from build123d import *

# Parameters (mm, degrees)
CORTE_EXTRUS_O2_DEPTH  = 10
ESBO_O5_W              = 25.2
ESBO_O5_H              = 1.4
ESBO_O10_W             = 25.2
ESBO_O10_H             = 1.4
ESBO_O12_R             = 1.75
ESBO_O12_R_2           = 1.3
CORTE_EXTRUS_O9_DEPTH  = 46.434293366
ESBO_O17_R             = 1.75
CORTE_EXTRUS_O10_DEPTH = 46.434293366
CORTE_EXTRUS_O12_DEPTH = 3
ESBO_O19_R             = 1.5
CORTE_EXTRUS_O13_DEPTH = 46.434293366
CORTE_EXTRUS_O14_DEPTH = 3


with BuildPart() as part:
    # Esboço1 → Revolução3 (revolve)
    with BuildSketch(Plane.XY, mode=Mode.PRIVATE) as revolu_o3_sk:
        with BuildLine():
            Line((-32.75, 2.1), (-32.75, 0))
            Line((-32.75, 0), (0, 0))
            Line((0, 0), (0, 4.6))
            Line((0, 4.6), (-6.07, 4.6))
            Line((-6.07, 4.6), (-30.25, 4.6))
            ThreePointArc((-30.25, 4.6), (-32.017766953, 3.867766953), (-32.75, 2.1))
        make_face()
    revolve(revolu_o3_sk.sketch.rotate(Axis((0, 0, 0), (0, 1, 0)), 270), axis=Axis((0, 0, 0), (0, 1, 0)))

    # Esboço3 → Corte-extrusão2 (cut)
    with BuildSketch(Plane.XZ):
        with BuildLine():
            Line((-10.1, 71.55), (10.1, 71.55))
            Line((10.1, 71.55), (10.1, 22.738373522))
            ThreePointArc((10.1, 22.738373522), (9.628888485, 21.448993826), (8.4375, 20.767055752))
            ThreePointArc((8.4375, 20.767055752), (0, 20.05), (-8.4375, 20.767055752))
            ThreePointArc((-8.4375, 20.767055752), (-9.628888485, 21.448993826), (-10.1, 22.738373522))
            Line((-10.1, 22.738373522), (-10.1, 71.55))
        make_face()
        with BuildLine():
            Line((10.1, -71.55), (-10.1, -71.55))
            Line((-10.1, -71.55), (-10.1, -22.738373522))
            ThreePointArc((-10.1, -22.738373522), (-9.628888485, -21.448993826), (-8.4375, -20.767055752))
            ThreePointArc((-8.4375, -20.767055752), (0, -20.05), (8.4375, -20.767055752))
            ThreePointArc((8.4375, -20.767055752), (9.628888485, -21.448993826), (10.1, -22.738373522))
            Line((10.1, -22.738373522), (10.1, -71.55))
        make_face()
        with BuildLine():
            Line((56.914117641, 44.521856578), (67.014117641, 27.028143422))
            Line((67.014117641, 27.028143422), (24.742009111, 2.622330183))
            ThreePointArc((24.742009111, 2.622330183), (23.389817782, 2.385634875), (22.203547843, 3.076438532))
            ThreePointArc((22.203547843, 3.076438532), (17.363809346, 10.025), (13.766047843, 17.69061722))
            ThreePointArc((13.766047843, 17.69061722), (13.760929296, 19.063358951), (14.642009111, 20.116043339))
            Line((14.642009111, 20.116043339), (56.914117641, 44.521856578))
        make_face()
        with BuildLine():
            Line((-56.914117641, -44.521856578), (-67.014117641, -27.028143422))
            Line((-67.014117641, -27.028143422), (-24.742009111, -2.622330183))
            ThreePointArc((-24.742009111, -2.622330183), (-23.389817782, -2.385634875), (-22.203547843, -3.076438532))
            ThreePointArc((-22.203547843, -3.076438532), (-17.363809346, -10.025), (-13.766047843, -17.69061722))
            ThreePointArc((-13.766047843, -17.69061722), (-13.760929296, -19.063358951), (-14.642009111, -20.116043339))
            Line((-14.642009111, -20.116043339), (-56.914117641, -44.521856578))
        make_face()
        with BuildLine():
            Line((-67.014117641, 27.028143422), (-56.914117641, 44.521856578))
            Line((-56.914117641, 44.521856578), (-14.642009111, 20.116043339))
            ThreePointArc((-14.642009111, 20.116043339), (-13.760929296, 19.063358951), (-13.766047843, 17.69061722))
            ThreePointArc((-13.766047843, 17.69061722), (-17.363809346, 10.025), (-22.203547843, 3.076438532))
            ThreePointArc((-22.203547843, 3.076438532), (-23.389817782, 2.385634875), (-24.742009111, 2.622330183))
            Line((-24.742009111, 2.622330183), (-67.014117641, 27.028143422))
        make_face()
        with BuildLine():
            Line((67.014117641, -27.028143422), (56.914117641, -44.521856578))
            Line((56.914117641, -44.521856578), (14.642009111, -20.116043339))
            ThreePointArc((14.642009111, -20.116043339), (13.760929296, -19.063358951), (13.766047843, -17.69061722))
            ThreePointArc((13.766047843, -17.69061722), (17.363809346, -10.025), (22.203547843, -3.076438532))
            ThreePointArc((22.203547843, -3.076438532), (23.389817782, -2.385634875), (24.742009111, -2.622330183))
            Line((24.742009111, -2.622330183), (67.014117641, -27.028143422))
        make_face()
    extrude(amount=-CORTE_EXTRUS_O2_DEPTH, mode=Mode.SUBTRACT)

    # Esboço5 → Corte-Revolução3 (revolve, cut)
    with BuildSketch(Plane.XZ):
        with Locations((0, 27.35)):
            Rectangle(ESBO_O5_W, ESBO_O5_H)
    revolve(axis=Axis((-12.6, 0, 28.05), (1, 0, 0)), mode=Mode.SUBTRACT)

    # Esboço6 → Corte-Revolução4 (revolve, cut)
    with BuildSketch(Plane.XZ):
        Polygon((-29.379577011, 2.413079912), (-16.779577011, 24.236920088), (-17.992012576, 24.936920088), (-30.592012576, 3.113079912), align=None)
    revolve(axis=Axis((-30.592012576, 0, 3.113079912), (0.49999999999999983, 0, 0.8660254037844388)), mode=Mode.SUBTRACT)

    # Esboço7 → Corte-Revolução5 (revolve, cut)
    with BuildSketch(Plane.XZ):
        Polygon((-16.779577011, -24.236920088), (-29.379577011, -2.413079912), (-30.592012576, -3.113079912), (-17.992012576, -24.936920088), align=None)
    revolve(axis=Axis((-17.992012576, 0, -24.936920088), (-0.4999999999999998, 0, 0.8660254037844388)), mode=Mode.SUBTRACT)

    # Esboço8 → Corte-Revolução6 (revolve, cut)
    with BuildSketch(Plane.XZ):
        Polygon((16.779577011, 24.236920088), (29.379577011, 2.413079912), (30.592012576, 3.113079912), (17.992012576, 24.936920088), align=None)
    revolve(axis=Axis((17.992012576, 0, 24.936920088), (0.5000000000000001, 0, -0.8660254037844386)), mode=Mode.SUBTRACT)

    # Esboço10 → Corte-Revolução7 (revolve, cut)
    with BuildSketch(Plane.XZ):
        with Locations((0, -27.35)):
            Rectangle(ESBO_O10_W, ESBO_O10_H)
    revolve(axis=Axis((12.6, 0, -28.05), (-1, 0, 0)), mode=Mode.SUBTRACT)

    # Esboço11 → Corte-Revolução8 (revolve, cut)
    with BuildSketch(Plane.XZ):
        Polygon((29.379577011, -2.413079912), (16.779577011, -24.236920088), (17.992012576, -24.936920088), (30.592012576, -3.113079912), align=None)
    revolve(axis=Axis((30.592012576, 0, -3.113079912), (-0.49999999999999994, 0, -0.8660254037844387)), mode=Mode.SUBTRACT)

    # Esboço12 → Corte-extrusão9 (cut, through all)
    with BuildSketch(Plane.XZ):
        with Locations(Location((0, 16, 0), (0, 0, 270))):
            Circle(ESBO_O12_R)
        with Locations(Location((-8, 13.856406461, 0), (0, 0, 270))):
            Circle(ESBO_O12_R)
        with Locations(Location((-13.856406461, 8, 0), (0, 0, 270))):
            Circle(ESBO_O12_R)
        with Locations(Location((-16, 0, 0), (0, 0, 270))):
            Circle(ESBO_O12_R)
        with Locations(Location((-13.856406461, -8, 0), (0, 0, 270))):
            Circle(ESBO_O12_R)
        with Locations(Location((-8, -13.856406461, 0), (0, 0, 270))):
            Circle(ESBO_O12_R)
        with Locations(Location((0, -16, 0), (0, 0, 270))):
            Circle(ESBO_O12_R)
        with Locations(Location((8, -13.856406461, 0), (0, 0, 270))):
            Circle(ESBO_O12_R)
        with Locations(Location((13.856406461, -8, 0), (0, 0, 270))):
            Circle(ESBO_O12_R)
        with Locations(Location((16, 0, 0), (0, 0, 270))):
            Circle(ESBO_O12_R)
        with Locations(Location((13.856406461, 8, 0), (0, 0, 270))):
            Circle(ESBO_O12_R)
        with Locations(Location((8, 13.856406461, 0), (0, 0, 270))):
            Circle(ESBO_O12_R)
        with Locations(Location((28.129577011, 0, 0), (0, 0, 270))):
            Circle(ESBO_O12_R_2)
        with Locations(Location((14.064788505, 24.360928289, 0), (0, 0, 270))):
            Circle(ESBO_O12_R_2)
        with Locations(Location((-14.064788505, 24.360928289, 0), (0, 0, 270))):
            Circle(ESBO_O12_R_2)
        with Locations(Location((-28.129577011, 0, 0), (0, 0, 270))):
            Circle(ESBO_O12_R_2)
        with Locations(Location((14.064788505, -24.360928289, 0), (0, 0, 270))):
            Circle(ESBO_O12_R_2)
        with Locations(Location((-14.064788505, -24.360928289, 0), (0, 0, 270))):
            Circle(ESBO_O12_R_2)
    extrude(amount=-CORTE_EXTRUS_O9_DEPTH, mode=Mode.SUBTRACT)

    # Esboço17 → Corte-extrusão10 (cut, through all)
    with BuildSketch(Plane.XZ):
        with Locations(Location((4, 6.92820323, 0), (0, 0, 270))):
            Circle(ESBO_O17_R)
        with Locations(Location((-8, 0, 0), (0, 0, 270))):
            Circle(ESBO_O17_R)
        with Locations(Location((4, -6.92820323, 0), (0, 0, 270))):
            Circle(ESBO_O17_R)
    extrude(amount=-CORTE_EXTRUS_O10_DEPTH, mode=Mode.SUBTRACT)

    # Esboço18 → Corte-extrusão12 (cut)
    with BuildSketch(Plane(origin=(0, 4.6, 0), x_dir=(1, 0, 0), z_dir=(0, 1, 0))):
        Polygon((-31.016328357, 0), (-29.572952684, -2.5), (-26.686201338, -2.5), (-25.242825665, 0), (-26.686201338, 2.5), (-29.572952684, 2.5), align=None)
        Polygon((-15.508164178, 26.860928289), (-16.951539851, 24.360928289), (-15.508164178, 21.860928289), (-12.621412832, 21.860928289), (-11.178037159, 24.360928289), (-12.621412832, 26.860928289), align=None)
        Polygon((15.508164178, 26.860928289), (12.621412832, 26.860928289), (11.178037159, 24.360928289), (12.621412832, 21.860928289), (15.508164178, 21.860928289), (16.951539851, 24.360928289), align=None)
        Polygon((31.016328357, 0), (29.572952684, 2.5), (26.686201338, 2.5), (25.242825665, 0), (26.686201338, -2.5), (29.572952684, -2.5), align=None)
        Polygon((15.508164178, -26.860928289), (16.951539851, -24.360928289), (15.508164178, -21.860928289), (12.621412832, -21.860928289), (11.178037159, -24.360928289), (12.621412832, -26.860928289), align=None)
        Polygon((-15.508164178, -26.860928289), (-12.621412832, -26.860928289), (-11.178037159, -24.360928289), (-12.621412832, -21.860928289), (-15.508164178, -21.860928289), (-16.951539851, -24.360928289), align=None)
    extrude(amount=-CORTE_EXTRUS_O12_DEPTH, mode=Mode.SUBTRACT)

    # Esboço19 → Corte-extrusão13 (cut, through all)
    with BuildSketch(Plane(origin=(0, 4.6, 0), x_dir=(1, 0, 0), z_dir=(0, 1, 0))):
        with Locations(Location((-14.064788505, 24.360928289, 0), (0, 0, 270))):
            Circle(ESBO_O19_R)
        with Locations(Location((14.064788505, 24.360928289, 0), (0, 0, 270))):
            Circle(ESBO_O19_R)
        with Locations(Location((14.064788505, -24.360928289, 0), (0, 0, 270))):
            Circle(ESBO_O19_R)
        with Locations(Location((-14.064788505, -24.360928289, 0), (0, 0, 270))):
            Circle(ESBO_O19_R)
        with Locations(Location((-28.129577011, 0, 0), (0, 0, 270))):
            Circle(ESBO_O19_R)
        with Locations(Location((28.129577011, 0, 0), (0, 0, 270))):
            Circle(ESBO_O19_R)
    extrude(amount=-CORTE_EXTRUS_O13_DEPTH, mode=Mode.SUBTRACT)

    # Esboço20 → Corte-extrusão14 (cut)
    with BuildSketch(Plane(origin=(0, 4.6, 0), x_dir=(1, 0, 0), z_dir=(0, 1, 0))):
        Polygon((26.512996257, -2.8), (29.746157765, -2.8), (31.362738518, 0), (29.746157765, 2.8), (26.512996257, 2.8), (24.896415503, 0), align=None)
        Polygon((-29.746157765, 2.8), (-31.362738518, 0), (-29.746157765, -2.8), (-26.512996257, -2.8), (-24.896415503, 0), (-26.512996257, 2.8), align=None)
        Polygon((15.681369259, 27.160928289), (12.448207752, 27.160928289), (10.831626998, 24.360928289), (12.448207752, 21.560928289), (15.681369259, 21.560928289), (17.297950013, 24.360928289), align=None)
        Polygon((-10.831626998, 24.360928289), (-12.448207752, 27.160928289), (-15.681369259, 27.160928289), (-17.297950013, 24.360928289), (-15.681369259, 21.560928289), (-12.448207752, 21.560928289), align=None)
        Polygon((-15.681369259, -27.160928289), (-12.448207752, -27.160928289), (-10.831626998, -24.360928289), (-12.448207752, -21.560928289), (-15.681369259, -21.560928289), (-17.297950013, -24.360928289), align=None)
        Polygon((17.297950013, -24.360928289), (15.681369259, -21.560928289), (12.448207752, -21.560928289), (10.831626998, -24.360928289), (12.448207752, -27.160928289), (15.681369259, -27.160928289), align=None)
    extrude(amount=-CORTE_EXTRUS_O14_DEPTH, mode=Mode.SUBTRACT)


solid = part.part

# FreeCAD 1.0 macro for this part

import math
import FreeCAD as App
import Part
import Sketcher
Q = App.Units.Quantity


def add_polygon(sketch, points):
    """Adds a closed chain of lines whose ends are joined by coincident constraints."""
    first, n = sketch.GeometryCount, len(points)
    for a, b in zip(points, points[1:] + points[:1]):
        sketch.addGeometry(Part.LineSegment(App.Vector(*a, 0), App.Vector(*b, 0)), False)
    for i in range(n):
        sketch.addConstraint(Sketcher.Constraint("Coincident", first + i, 2, first + (i + 1) % n, 1))

doc = App.newDocument("Part")
params = doc.addObject("Spreadsheet::Sheet", "Params")
for row, (alias, value) in enumerate([
    ("sketch1_radius", "2.5 mm"),
    ("sketch1_height", "2.1 mm"),
    ("sketch1_width", "32.75 mm"),
    ("revolution_angle", "360 deg"),
    ("sketch2_radius", "2 mm"),
    ("sketch2_radius2", "50 mm"),
    ("sketch2_width", "20.2 mm"),
    ("sketch2_length", "20.2 mm"),
    ("pocket1_length", "10 mm"),
    ("sketch3_width", "25.2 mm"),
    ("sketch3_height", "1.4 mm"),
    ("groove_angle", "360 deg"),
    ("sketch4_length", "25.2 mm"),
    ("sketch4_length2", "1.4 mm"),
    ("groove2_angle", "360 deg"),
    ("sketch5_length", "25.2 mm"),
    ("sketch5_length2", "1.4 mm"),
    ("groove3_angle", "360 deg"),
    ("sketch6_length", "25.2 mm"),
    ("sketch6_length2", "1.4 mm"),
    ("groove4_angle", "360 deg"),
    ("sketch7_width", "25.2 mm"),
    ("sketch7_height", "1.4 mm"),
    ("groove5_angle", "360 deg"),
    ("sketch8_length", "25.2 mm"),
    ("sketch8_length2", "1.4 mm"),
    ("groove6_angle", "360 deg"),
    ("sketch9_diameter", "3.5 mm"),
    ("sketch9_diameter2", "2.6 mm"),
    ("sketch10_diameter", "3.5 mm"),
    ("pocket4_length", "3 mm"),
    ("sketch12_diameter", "3 mm"),
    ("pocket6_length", "3 mm"),
], start=1):
    params.set(f"A{row}", alias)
    params.set(f"B{row}", "=" + value)
    params.setAlias(f"B{row}", alias)

body = doc.addObject("PartDesign::Body", "Body")

# Sketch on XY plane
sketch1 = body.newObject("Sketcher::SketchObject", "Sketch")
sketch1.AttachmentSupport = (doc.getObject("XY_Plane"), [""])
sketch1.MapMode = "FlatFace"
sketch1.addGeometry(Part.LineSegment(App.Vector(-32.8, 2.1, 0), App.Vector(-32.8, 0, 0)), False)
sketch1.addGeometry(Part.LineSegment(App.Vector(-32.8, 0, 0), App.Vector(0, 0, 0)), False)
sketch1.addGeometry(Part.LineSegment(App.Vector(0, 0, 0), App.Vector(0, 4.6, 0)), False)
sketch1.addGeometry(Part.LineSegment(App.Vector(0, 4.6, 0), App.Vector(-30.2, 4.6, 0)), False)
sketch1.addGeometry(Part.ArcOfCircle(Part.Circle(App.Vector(-30.2, 2.1, 0), App.Vector(0, 0, 1), 2.5), math.radians(90), math.radians(180)), False)
sketch1.addConstraint(Sketcher.Constraint("Coincident", 0, 2, 1, 1))
sketch1.addConstraint(Sketcher.Constraint("Coincident", 1, 2, 2, 1))
sketch1.addConstraint(Sketcher.Constraint("Coincident", 2, 2, 3, 1))
sketch1.addConstraint(Sketcher.Constraint("Tangent", 3, 2, 4, 1))
sketch1.addConstraint(Sketcher.Constraint("Tangent", 4, 2, 0, 1))
sketch1.addConstraint(Sketcher.Constraint("Vertical", 0))
sketch1.addConstraint(Sketcher.Constraint("Horizontal", 1))
sketch1.addConstraint(Sketcher.Constraint("Vertical", 2))
sketch1.addConstraint(Sketcher.Constraint("Horizontal", 3))
sketch1.addConstraint(Sketcher.Constraint("Coincident", 1, 2, -1, 1))
sketch1.addConstraint(Sketcher.Constraint("Radius", 4, 2.5))
sketch1.addConstraint(Sketcher.Constraint("DistanceY", 0, 2, 0, 1, 2.1))
sketch1.addConstraint(Sketcher.Constraint("DistanceX", 1, 1, 1, 2, 32.75))
sketch1.setExpression("Constraints[10]", "Params.sketch1_radius")
sketch1.setExpression("Constraints[11]", "Params.sketch1_height")
sketch1.setExpression("Constraints[12]", "Params.sketch1_width")
revolution = body.newObject("PartDesign::Revolution", "Revolution")
revolution.Profile = sketch1
revolution.ReferenceAxis = (sketch1, ["V_Axis"])
revolution.setExpression("Angle", "Params.revolution_angle")

# Sketch on XZ plane
sketch2 = body.newObject("Sketcher::SketchObject", "Sketch001")
sketch2.AttachmentSupport = (doc.getObject("XZ_Plane"), [""])
sketch2.MapMode = "FlatFace"
sketch2.addGeometry(Part.LineSegment(App.Vector(10.1, 71.5, 0), App.Vector(-10.1, 71.5, 0)), False)
sketch2.addGeometry(Part.LineSegment(App.Vector(-10.1, 71.5, 0), App.Vector(-10.1, 22.7, 0)), False)
sketch2.addGeometry(Part.ArcOfCircle(Part.Circle(App.Vector(-8.1, 22.7, 0), App.Vector(0, 0, 1), 2), math.radians(180), math.radians(260)), False)
sketch2.addGeometry(Part.ArcOfCircle(Part.Circle(App.Vector(0, 70.1, 0), App.Vector(0, 0, 1), 50), math.radians(-99.72), math.radians(-80.28)), False)
sketch2.addGeometry(Part.ArcOfCircle(Part.Circle(App.Vector(8.1, 22.7, 0), App.Vector(0, 0, 1), 2), math.radians(-80), math.radians(0)), False)
sketch2.addGeometry(Part.LineSegment(App.Vector(10.1, 22.7, 0), App.Vector(10.1, 71.5, 0)), False)
sketch2.addGeometry(Part.LineSegment(App.Vector(-10.1, -71.5, 0), App.Vector(10.1, -71.5, 0)), False)
sketch2.addGeometry(Part.LineSegment(App.Vector(10.1, -71.5, 0), App.Vector(10.1, -22.7, 0)), False)
sketch2.addGeometry(Part.ArcOfCircle(Part.Circle(App.Vector(8.1, -22.7, 0), App.Vector(0, 0, 1), 2), math.radians(0), math.radians(80)), False)
sketch2.addGeometry(Part.ArcOfCircle(Part.Circle(App.Vector(0, -70.1, 0), App.Vector(0, 0, 1), 50), math.radians(80.28), math.radians(99.72)), False)
sketch2.addGeometry(Part.ArcOfCircle(Part.Circle(App.Vector(-8.1, -22.7, 0), App.Vector(0, 0, 1), 2), math.radians(100), math.radians(180)), False)
sketch2.addGeometry(Part.LineSegment(App.Vector(-10.1, -22.7, 0), App.Vector(-10.1, -71.5, 0)), False)
sketch2.addGeometry(Part.LineSegment(App.Vector(67, 27, 0), App.Vector(56.9, 44.5, 0)), False)
sketch2.addGeometry(Part.LineSegment(App.Vector(56.9, 44.5, 0), App.Vector(14.6, 20.1, 0)), False)
sketch2.addGeometry(Part.ArcOfCircle(Part.Circle(App.Vector(15.6, 18.4, 0), App.Vector(0, 0, 1), 2), math.radians(120), math.radians(200)), False)
sketch2.addGeometry(Part.ArcOfCircle(Part.Circle(App.Vector(60.7, 35, 0), App.Vector(0, 0, 1), 50), math.radians(-159.72), math.radians(-140.28)), False)
sketch2.addGeometry(Part.ArcOfCircle(Part.Circle(App.Vector(23.7, 4.4, 0), App.Vector(0, 0, 1), 2), math.radians(-140), math.radians(-60)), False)
sketch2.addGeometry(Part.LineSegment(App.Vector(24.7, 2.6, 0), App.Vector(67, 27, 0)), False)
sketch2.addGeometry(Part.LineSegment(App.Vector(-67, -27, 0), App.Vector(-56.9, -44.5, 0)), False)
sketch2.addGeometry(Part.LineSegment(App.Vector(-56.9, -44.5, 0), App.Vector(-14.6, -20.1, 0)), False)
sketch2.addGeometry(Part.ArcOfCircle(Part.Circle(App.Vector(-15.6, -18.4, 0), App.Vector(0, 0, 1), 2), math.radians(-60), math.radians(20)), False)
sketch2.addGeometry(Part.ArcOfCircle(Part.Circle(App.Vector(-60.7, -35, 0), App.Vector(0, 0, 1), 50), math.radians(20.28), math.radians(39.72)), False)
sketch2.addGeometry(Part.ArcOfCircle(Part.Circle(App.Vector(-23.7, -4.4, 0), App.Vector(0, 0, 1), 2), math.radians(40), math.radians(120)), False)
sketch2.addGeometry(Part.LineSegment(App.Vector(-24.7, -2.6, 0), App.Vector(-67, -27, 0)), False)
sketch2.addGeometry(Part.LineSegment(App.Vector(-56.9, 44.5, 0), App.Vector(-67, 27, 0)), False)
sketch2.addGeometry(Part.LineSegment(App.Vector(-67, 27, 0), App.Vector(-24.7, 2.6, 0)), False)
sketch2.addGeometry(Part.ArcOfCircle(Part.Circle(App.Vector(-23.7, 4.4, 0), App.Vector(0, 0, 1), 2), math.radians(-120), math.radians(-40)), False)
sketch2.addGeometry(Part.ArcOfCircle(Part.Circle(App.Vector(-60.7, 35, 0), App.Vector(0, 0, 1), 50), math.radians(-39.72), math.radians(-20.28)), False)
sketch2.addGeometry(Part.ArcOfCircle(Part.Circle(App.Vector(-15.6, 18.4, 0), App.Vector(0, 0, 1), 2), math.radians(-20), math.radians(60)), False)
sketch2.addGeometry(Part.LineSegment(App.Vector(-14.6, 20.1, 0), App.Vector(-56.9, 44.5, 0)), False)
sketch2.addGeometry(Part.LineSegment(App.Vector(56.9, -44.5, 0), App.Vector(67, -27, 0)), False)
sketch2.addGeometry(Part.LineSegment(App.Vector(67, -27, 0), App.Vector(24.7, -2.6, 0)), False)
sketch2.addGeometry(Part.ArcOfCircle(Part.Circle(App.Vector(23.7, -4.4, 0), App.Vector(0, 0, 1), 2), math.radians(60), math.radians(140)), False)
sketch2.addGeometry(Part.ArcOfCircle(Part.Circle(App.Vector(60.7, -35, 0), App.Vector(0, 0, 1), 50), math.radians(140.28), math.radians(159.72)), False)
sketch2.addGeometry(Part.ArcOfCircle(Part.Circle(App.Vector(15.6, -18.4, 0), App.Vector(0, 0, 1), 2), math.radians(160), math.radians(240)), False)
sketch2.addGeometry(Part.LineSegment(App.Vector(14.6, -20.1, 0), App.Vector(56.9, -44.5, 0)), False)
sketch2.addConstraint(Sketcher.Constraint("Coincident", 0, 2, 1, 1))
sketch2.addConstraint(Sketcher.Constraint("Tangent", 1, 2, 2, 1))
sketch2.addConstraint(Sketcher.Constraint("Tangent", 2, 2, 3, 1))
sketch2.addConstraint(Sketcher.Constraint("Tangent", 3, 2, 4, 1))
sketch2.addConstraint(Sketcher.Constraint("Tangent", 4, 2, 5, 1))
sketch2.addConstraint(Sketcher.Constraint("Coincident", 5, 2, 0, 1))
sketch2.addConstraint(Sketcher.Constraint("Coincident", 6, 2, 7, 1))
sketch2.addConstraint(Sketcher.Constraint("Tangent", 7, 2, 8, 1))
sketch2.addConstraint(Sketcher.Constraint("Tangent", 8, 2, 9, 1))
sketch2.addConstraint(Sketcher.Constraint("Tangent", 9, 2, 10, 1))
sketch2.addConstraint(Sketcher.Constraint("Tangent", 10, 2, 11, 1))
sketch2.addConstraint(Sketcher.Constraint("Coincident", 11, 2, 6, 1))
sketch2.addConstraint(Sketcher.Constraint("Coincident", 12, 2, 13, 1))
sketch2.addConstraint(Sketcher.Constraint("Tangent", 13, 2, 14, 1))
sketch2.addConstraint(Sketcher.Constraint("Tangent", 14, 2, 15, 1))
sketch2.addConstraint(Sketcher.Constraint("Tangent", 15, 2, 16, 1))
sketch2.addConstraint(Sketcher.Constraint("Tangent", 16, 2, 17, 1))
sketch2.addConstraint(Sketcher.Constraint("Coincident", 17, 2, 12, 1))
sketch2.addConstraint(Sketcher.Constraint("Coincident", 18, 2, 19, 1))
sketch2.addConstraint(Sketcher.Constraint("Tangent", 19, 2, 20, 1))
sketch2.addConstraint(Sketcher.Constraint("Tangent", 20, 2, 21, 1))
sketch2.addConstraint(Sketcher.Constraint("Tangent", 21, 2, 22, 1))
sketch2.addConstraint(Sketcher.Constraint("Tangent", 22, 2, 23, 1))
sketch2.addConstraint(Sketcher.Constraint("Coincident", 23, 2, 18, 1))
sketch2.addConstraint(Sketcher.Constraint("Coincident", 24, 2, 25, 1))
sketch2.addConstraint(Sketcher.Constraint("Tangent", 25, 2, 26, 1))
sketch2.addConstraint(Sketcher.Constraint("Tangent", 26, 2, 27, 1))
sketch2.addConstraint(Sketcher.Constraint("Tangent", 27, 2, 28, 1))
sketch2.addConstraint(Sketcher.Constraint("Tangent", 28, 2, 29, 1))
sketch2.addConstraint(Sketcher.Constraint("Coincident", 29, 2, 24, 1))
sketch2.addConstraint(Sketcher.Constraint("Coincident", 30, 2, 31, 1))
sketch2.addConstraint(Sketcher.Constraint("Tangent", 31, 2, 32, 1))
sketch2.addConstraint(Sketcher.Constraint("Tangent", 32, 2, 33, 1))
sketch2.addConstraint(Sketcher.Constraint("Tangent", 33, 2, 34, 1))
sketch2.addConstraint(Sketcher.Constraint("Tangent", 34, 2, 35, 1))
sketch2.addConstraint(Sketcher.Constraint("Coincident", 35, 2, 30, 1))
sketch2.addConstraint(Sketcher.Constraint("Horizontal", 0))
sketch2.addConstraint(Sketcher.Constraint("Vertical", 1))
sketch2.addConstraint(Sketcher.Constraint("Vertical", 5))
sketch2.addConstraint(Sketcher.Constraint("Horizontal", 6))
sketch2.addConstraint(Sketcher.Constraint("Vertical", 7))
sketch2.addConstraint(Sketcher.Constraint("Vertical", 11))
sketch2.addConstraint(Sketcher.Constraint("Equal", 2, 4))
sketch2.addConstraint(Sketcher.Constraint("Equal", 4, 8))
sketch2.addConstraint(Sketcher.Constraint("Equal", 3, 9))
sketch2.addConstraint(Sketcher.Constraint("Equal", 8, 10))
sketch2.addConstraint(Sketcher.Constraint("Equal", 10, 14))
sketch2.addConstraint(Sketcher.Constraint("Equal", 9, 15))
sketch2.addConstraint(Sketcher.Constraint("Equal", 14, 16))
sketch2.addConstraint(Sketcher.Constraint("Equal", 16, 20))
sketch2.addConstraint(Sketcher.Constraint("Equal", 15, 21))
sketch2.addConstraint(Sketcher.Constraint("Equal", 20, 22))
sketch2.addConstraint(Sketcher.Constraint("Equal", 22, 26))
sketch2.addConstraint(Sketcher.Constraint("Equal", 21, 27))
sketch2.addConstraint(Sketcher.Constraint("Equal", 26, 28))
sketch2.addConstraint(Sketcher.Constraint("Equal", 28, 32))
sketch2.addConstraint(Sketcher.Constraint("Equal", 27, 33))
sketch2.addConstraint(Sketcher.Constraint("Equal", 32, 34))
sketch2.addConstraint(Sketcher.Constraint("Symmetric", 2, 3, 8, 3, -1, 1))
sketch2.addConstraint(Sketcher.Constraint("Symmetric", 4, 3, 10, 3, -1, 1))
sketch2.addConstraint(Sketcher.Constraint("Symmetric", 14, 3, 20, 3, -1, 1))
sketch2.addConstraint(Sketcher.Constraint("Symmetric", 16, 3, 22, 3, -1, 1))
sketch2.addConstraint(Sketcher.Constraint("Symmetric", 26, 3, 32, 3, -1, 1))
sketch2.addConstraint(Sketcher.Constraint("Symmetric", 28, 3, 34, 3, -1, 1))
sketch2.addConstraint(Sketcher.Constraint("Symmetric", 12, 2, 18, 2, -1, 1))
sketch2.addConstraint(Sketcher.Constraint("Symmetric", 17, 2, 23, 2, -1, 1))
sketch2.addConstraint(Sketcher.Constraint("Symmetric", 24, 2, 30, 2, -1, 1))
sketch2.addConstraint(Sketcher.Constraint("Symmetric", 29, 2, 35, 2, -1, 1))
sketch2.addConstraint(Sketcher.Constraint("Symmetric", 2, 3, 4, 3, -2))
sketch2.addConstraint(Sketcher.Constraint("Symmetric", 16, 3, 26, 3, -2))
sketch2.addConstraint(Sketcher.Constraint("Symmetric", 14, 3, 28, 3, -2))
sketch2.addConstraint(Sketcher.Constraint("Symmetric", 17, 2, 24, 2, -2))
sketch2.addConstraint(Sketcher.Constraint("Symmetric", 12, 2, 29, 2, -2))
sketch2.addConstraint(Sketcher.Constraint("Perpendicular", 12, 13))
sketch2.addConstraint(Sketcher.Constraint("Parallel", 13, 17))
sketch2.addConstraint(Sketcher.Constraint("Equal", 5, 7))
sketch2.addConstraint(Sketcher.Constraint("Equal", 13, 17))
sketch2.addConstraint(Sketcher.Constraint("Radius", 2, 2.0))
sketch2.addConstraint(Sketcher.Constraint("Radius", 3, 50.0))
sketch2.addConstraint(Sketcher.Constraint("Angle", 12, Q("120 deg")))
sketch2.addConstraint(Sketcher.Constraint("DistanceX", 0, 2, 0, 1, 20.2))
sketch2.addConstraint(Sketcher.Constraint("Distance", 12, 20.2))
sketch2.addConstraint(Sketcher.Constraint("DistanceY", 9, 3, 3, 3, 140.1))
sketch2.addConstraint(Sketcher.Constraint("DistanceY", 3, 3, 0, 2, 1.5))
sketch2.addConstraint(Sketcher.Constraint("DistanceY", -1, 1, 15, 3, 35.025))
sketch2.addConstraint(Sketcher.Constraint("DistanceX", -1, 1, 14, 3, 15.642009))
sketch2.addConstraint(Sketcher.Constraint("DistanceX", 12, 2, 15, 3, 3.750962))
sketch2.setExpression("Constraints[77]", "Params.sketch2_radius")
sketch2.setExpression("Constraints[78]", "Params.sketch2_radius2")
sketch2.setExpression("Constraints[80]", "Params.sketch2_width")
sketch2.setExpression("Constraints[81]", "Params.sketch2_length")
pocket1 = body.newObject("PartDesign::Pocket", "Pocket")
pocket1.Profile = sketch2
pocket1.setExpression("Length", "Params.pocket1_length")

# Sketch on XZ plane
sketch3 = body.newObject("Sketcher::SketchObject", "Sketch002")
sketch3.AttachmentSupport = (doc.getObject("XZ_Plane"), [""])
sketch3.MapMode = "FlatFace"
add_polygon(sketch3, [(-12.6, 28.1), (-12.6, 26.6), (12.6, 26.6), (12.6, 28.1)])  # lines 0-3
sketch3.addGeometry(Part.LineSegment(App.Vector(-12.6, 28.1, 0), App.Vector(12.6, 28.1, 0)), True)  # axis
sketch3.addConstraint(Sketcher.Constraint("Vertical", 0))
sketch3.addConstraint(Sketcher.Constraint("Horizontal", 1))
sketch3.addConstraint(Sketcher.Constraint("Vertical", 2))
sketch3.addConstraint(Sketcher.Constraint("Horizontal", 3))
sketch3.addConstraint(Sketcher.Constraint("Horizontal", 4))
sketch3.addConstraint(Sketcher.Constraint("Coincident", 4, 1, 3, 2))
sketch3.addConstraint(Sketcher.Constraint("Vertical", 1, 2, 4, 2))
sketch3.addConstraint(Sketcher.Constraint("DistanceX", 1, 1, 1, 2, 25.2))
sketch3.addConstraint(Sketcher.Constraint("DistanceY", 0, 2, 0, 1, 1.4))
sketch3.addConstraint(Sketcher.Constraint("DistanceX", 0, 2, -1, 1, 12.6))
sketch3.addConstraint(Sketcher.Constraint("DistanceY", -1, 1, 0, 2, 26.65))
sketch3.setExpression("Constraints[11]", "Params.sketch3_width")
sketch3.setExpression("Constraints[12]", "Params.sketch3_height")
groove = body.newObject("PartDesign::Groove", "Groove")
groove.Profile = sketch3
groove.ReferenceAxis = (sketch3, ["Axis0"])
groove.setExpression("Angle", "Params.groove_angle")

# Sketch on XZ plane
sketch4 = body.newObject("Sketcher::SketchObject", "Sketch003")
sketch4.AttachmentSupport = (doc.getObject("XZ_Plane"), [""])
sketch4.MapMode = "FlatFace"
add_polygon(sketch4, [(-29.4, 2.4), (-16.8, 24.2), (-18, 24.9), (-30.6, 3.1)])  # lines 0-3
sketch4.addGeometry(Part.LineSegment(App.Vector(-30.6, 3.1, 0), App.Vector(-18, 24.9, 0)), True)  # axis
sketch4.addConstraint(Sketcher.Constraint("Coincident", 4, 1, 2, 2))
sketch4.addConstraint(Sketcher.Constraint("Coincident", 4, 2, 1, 2))
sketch4.addConstraint(Sketcher.Constraint("Perpendicular", 0, 1))
sketch4.addConstraint(Sketcher.Constraint("Perpendicular", 1, 2))
sketch4.addConstraint(Sketcher.Constraint("Perpendicular", 2, 3))
sketch4.addConstraint(Sketcher.Constraint("Angle", 0, Q("60 deg")))
sketch4.addConstraint(Sketcher.Constraint("Distance", 0, 25.2))
sketch4.addConstraint(Sketcher.Constraint("Distance", 1, 1.4))
sketch4.addConstraint(Sketcher.Constraint("DistanceY", -1, 1, 0, 2, 24.23692))
sketch4.addConstraint(Sketcher.Constraint("DistanceX", 0, 2, -1, 1, 16.779577))
sketch4.setExpression("Constraints[10]", "Params.sketch4_length")
sketch4.setExpression("Constraints[11]", "Params.sketch4_length2")
groove2 = body.newObject("PartDesign::Groove", "Groove001")
groove2.Profile = sketch4
groove2.ReferenceAxis = (sketch4, ["Axis0"])
groove2.setExpression("Angle", "Params.groove2_angle")

# Sketch on XZ plane
sketch5 = body.newObject("Sketcher::SketchObject", "Sketch004")
sketch5.AttachmentSupport = (doc.getObject("XZ_Plane"), [""])
sketch5.MapMode = "FlatFace"
add_polygon(sketch5, [(-16.8, -24.2), (-29.4, -2.4), (-30.6, -3.1), (-18, -24.9)])  # lines 0-3
sketch5.addGeometry(Part.LineSegment(App.Vector(-18, -24.9, 0), App.Vector(-30.6, -3.1, 0)), True)  # axis
sketch5.addConstraint(Sketcher.Constraint("Coincident", 4, 1, 2, 2))
sketch5.addConstraint(Sketcher.Constraint("Coincident", 4, 2, 1, 2))
sketch5.addConstraint(Sketcher.Constraint("Perpendicular", 0, 1))
sketch5.addConstraint(Sketcher.Constraint("Perpendicular", 1, 2))
sketch5.addConstraint(Sketcher.Constraint("Perpendicular", 2, 3))
sketch5.addConstraint(Sketcher.Constraint("Angle", 0, Q("120 deg")))
sketch5.addConstraint(Sketcher.Constraint("Distance", 0, 25.2))
sketch5.addConstraint(Sketcher.Constraint("Distance", 1, 1.4))
sketch5.addConstraint(Sketcher.Constraint("DistanceY", 0, 2, -1, 1, 2.41308))
sketch5.addConstraint(Sketcher.Constraint("DistanceX", 0, 2, -1, 1, 29.379577))
sketch5.setExpression("Constraints[10]", "Params.sketch5_length")
sketch5.setExpression("Constraints[11]", "Params.sketch5_length2")
groove3 = body.newObject("PartDesign::Groove", "Groove002")
groove3.Profile = sketch5
groove3.ReferenceAxis = (sketch5, ["Axis0"])
groove3.setExpression("Angle", "Params.groove3_angle")

# Sketch on XZ plane
sketch6 = body.newObject("Sketcher::SketchObject", "Sketch005")
sketch6.AttachmentSupport = (doc.getObject("XZ_Plane"), [""])
sketch6.MapMode = "FlatFace"
add_polygon(sketch6, [(16.8, 24.2), (29.4, 2.4), (30.6, 3.1), (18, 24.9)])  # lines 0-3
sketch6.addGeometry(Part.LineSegment(App.Vector(18, 24.9, 0), App.Vector(30.6, 3.1, 0)), True)  # axis
sketch6.addConstraint(Sketcher.Constraint("Coincident", 4, 1, 2, 2))
sketch6.addConstraint(Sketcher.Constraint("Coincident", 4, 2, 1, 2))
sketch6.addConstraint(Sketcher.Constraint("Perpendicular", 0, 1))
sketch6.addConstraint(Sketcher.Constraint("Perpendicular", 1, 2))
sketch6.addConstraint(Sketcher.Constraint("Perpendicular", 2, 3))
sketch6.addConstraint(Sketcher.Constraint("Angle", 0, Q("-60 deg")))
sketch6.addConstraint(Sketcher.Constraint("Distance", 0, 25.2))
sketch6.addConstraint(Sketcher.Constraint("Distance", 1, 1.4))
sketch6.addConstraint(Sketcher.Constraint("DistanceY", -1, 1, 0, 2, 2.41308))
sketch6.addConstraint(Sketcher.Constraint("DistanceX", -1, 1, 0, 2, 29.379577))
sketch6.setExpression("Constraints[10]", "Params.sketch6_length")
sketch6.setExpression("Constraints[11]", "Params.sketch6_length2")
groove4 = body.newObject("PartDesign::Groove", "Groove003")
groove4.Profile = sketch6
groove4.ReferenceAxis = (sketch6, ["Axis0"])
groove4.setExpression("Angle", "Params.groove4_angle")

# Sketch on XZ plane
sketch7 = body.newObject("Sketcher::SketchObject", "Sketch006")
sketch7.AttachmentSupport = (doc.getObject("XZ_Plane"), [""])
sketch7.MapMode = "FlatFace"
add_polygon(sketch7, [(-12.6, -26.6), (-12.6, -28.1), (12.6, -28.1), (12.6, -26.6)])  # lines 0-3
sketch7.addGeometry(Part.LineSegment(App.Vector(12.6, -28.1, 0), App.Vector(-12.6, -28.1, 0)), True)  # axis
sketch7.addConstraint(Sketcher.Constraint("Vertical", 0))
sketch7.addConstraint(Sketcher.Constraint("Horizontal", 1))
sketch7.addConstraint(Sketcher.Constraint("Vertical", 2))
sketch7.addConstraint(Sketcher.Constraint("Horizontal", 3))
sketch7.addConstraint(Sketcher.Constraint("Horizontal", 4))
sketch7.addConstraint(Sketcher.Constraint("Coincident", 4, 1, 1, 2))
sketch7.addConstraint(Sketcher.Constraint("Vertical", 3, 2, 4, 2))
sketch7.addConstraint(Sketcher.Constraint("DistanceX", 1, 1, 1, 2, 25.2))
sketch7.addConstraint(Sketcher.Constraint("DistanceY", 0, 2, 0, 1, 1.4))
sketch7.addConstraint(Sketcher.Constraint("DistanceX", 0, 2, -1, 1, 12.6))
sketch7.addConstraint(Sketcher.Constraint("DistanceY", 0, 2, -1, 1, 28.05))
sketch7.setExpression("Constraints[11]", "Params.sketch7_width")
sketch7.setExpression("Constraints[12]", "Params.sketch7_height")
groove5 = body.newObject("PartDesign::Groove", "Groove004")
groove5.Profile = sketch7
groove5.ReferenceAxis = (sketch7, ["Axis0"])
groove5.setExpression("Angle", "Params.groove5_angle")

# Sketch on XZ plane
sketch8 = body.newObject("Sketcher::SketchObject", "Sketch007")
sketch8.AttachmentSupport = (doc.getObject("XZ_Plane"), [""])
sketch8.MapMode = "FlatFace"
add_polygon(sketch8, [(29.4, -2.4), (16.8, -24.2), (18, -24.9), (30.6, -3.1)])  # lines 0-3
sketch8.addGeometry(Part.LineSegment(App.Vector(30.6, -3.1, 0), App.Vector(18, -24.9, 0)), True)  # axis
sketch8.addConstraint(Sketcher.Constraint("Coincident", 4, 1, 2, 2))
sketch8.addConstraint(Sketcher.Constraint("Coincident", 4, 2, 1, 2))
sketch8.addConstraint(Sketcher.Constraint("Perpendicular", 0, 1))
sketch8.addConstraint(Sketcher.Constraint("Perpendicular", 1, 2))
sketch8.addConstraint(Sketcher.Constraint("Perpendicular", 2, 3))
sketch8.addConstraint(Sketcher.Constraint("Angle", 0, Q("-120 deg")))
sketch8.addConstraint(Sketcher.Constraint("Distance", 0, 25.2))
sketch8.addConstraint(Sketcher.Constraint("Distance", 1, 1.4))
sketch8.addConstraint(Sketcher.Constraint("DistanceY", 0, 2, -1, 1, 24.23692))
sketch8.addConstraint(Sketcher.Constraint("DistanceX", -1, 1, 0, 2, 16.779577))
sketch8.setExpression("Constraints[10]", "Params.sketch8_length")
sketch8.setExpression("Constraints[11]", "Params.sketch8_length2")
groove6 = body.newObject("PartDesign::Groove", "Groove005")
groove6.Profile = sketch8
groove6.ReferenceAxis = (sketch8, ["Axis0"])
groove6.setExpression("Angle", "Params.groove6_angle")

# Sketch on XZ plane
sketch9 = body.newObject("Sketcher::SketchObject", "Sketch008")
sketch9.AttachmentSupport = (doc.getObject("XZ_Plane"), [""])
sketch9.MapMode = "FlatFace"
sketch9.addGeometry(Part.Circle(App.Vector(0, 16, 0), App.Vector(0, 0, 1), 1.8), False)
sketch9.addGeometry(Part.Circle(App.Vector(-8, 13.9, 0), App.Vector(0, 0, 1), 1.8), False)
sketch9.addGeometry(Part.Circle(App.Vector(-13.9, 8, 0), App.Vector(0, 0, 1), 1.8), False)
sketch9.addGeometry(Part.Circle(App.Vector(-16, 0, 0), App.Vector(0, 0, 1), 1.8), False)
sketch9.addGeometry(Part.Circle(App.Vector(-13.9, -8, 0), App.Vector(0, 0, 1), 1.8), False)
sketch9.addGeometry(Part.Circle(App.Vector(-8, -13.9, 0), App.Vector(0, 0, 1), 1.8), False)
sketch9.addGeometry(Part.Circle(App.Vector(0, -16, 0), App.Vector(0, 0, 1), 1.8), False)
sketch9.addGeometry(Part.Circle(App.Vector(8, -13.9, 0), App.Vector(0, 0, 1), 1.8), False)
sketch9.addGeometry(Part.Circle(App.Vector(13.9, -8, 0), App.Vector(0, 0, 1), 1.8), False)
sketch9.addGeometry(Part.Circle(App.Vector(16, 0, 0), App.Vector(0, 0, 1), 1.8), False)
sketch9.addGeometry(Part.Circle(App.Vector(13.9, 8, 0), App.Vector(0, 0, 1), 1.8), False)
sketch9.addGeometry(Part.Circle(App.Vector(8, 13.9, 0), App.Vector(0, 0, 1), 1.8), False)
sketch9.addGeometry(Part.Circle(App.Vector(28.1, 0, 0), App.Vector(0, 0, 1), 1.3), False)
sketch9.addGeometry(Part.Circle(App.Vector(14.1, 24.4, 0), App.Vector(0, 0, 1), 1.3), False)
sketch9.addGeometry(Part.Circle(App.Vector(-14.1, 24.4, 0), App.Vector(0, 0, 1), 1.3), False)
sketch9.addGeometry(Part.Circle(App.Vector(-28.1, 0, 0), App.Vector(0, 0, 1), 1.3), False)
sketch9.addGeometry(Part.Circle(App.Vector(14.1, -24.4, 0), App.Vector(0, 0, 1), 1.3), False)
sketch9.addGeometry(Part.Circle(App.Vector(-14.1, -24.4, 0), App.Vector(0, 0, 1), 1.3), False)
sketch9.addConstraint(Sketcher.Constraint("Equal", 0, 1))
sketch9.addConstraint(Sketcher.Constraint("Equal", 1, 2))
sketch9.addConstraint(Sketcher.Constraint("Equal", 2, 3))
sketch9.addConstraint(Sketcher.Constraint("Equal", 3, 4))
sketch9.addConstraint(Sketcher.Constraint("Equal", 4, 5))
sketch9.addConstraint(Sketcher.Constraint("Equal", 5, 6))
sketch9.addConstraint(Sketcher.Constraint("Equal", 6, 7))
sketch9.addConstraint(Sketcher.Constraint("Equal", 7, 8))
sketch9.addConstraint(Sketcher.Constraint("Equal", 8, 9))
sketch9.addConstraint(Sketcher.Constraint("Equal", 9, 10))
sketch9.addConstraint(Sketcher.Constraint("Equal", 10, 11))
sketch9.addConstraint(Sketcher.Constraint("Equal", 12, 13))
sketch9.addConstraint(Sketcher.Constraint("Equal", 13, 14))
sketch9.addConstraint(Sketcher.Constraint("Equal", 14, 15))
sketch9.addConstraint(Sketcher.Constraint("Equal", 15, 16))
sketch9.addConstraint(Sketcher.Constraint("Equal", 16, 17))
sketch9.addConstraint(Sketcher.Constraint("Symmetric", 0, 3, 6, 3, -1, 1))
sketch9.addConstraint(Sketcher.Constraint("Symmetric", 1, 3, 7, 3, -1, 1))
sketch9.addConstraint(Sketcher.Constraint("Symmetric", 2, 3, 8, 3, -1, 1))
sketch9.addConstraint(Sketcher.Constraint("Symmetric", 3, 3, 9, 3, -1, 1))
sketch9.addConstraint(Sketcher.Constraint("Symmetric", 4, 3, 10, 3, -1, 1))
sketch9.addConstraint(Sketcher.Constraint("Symmetric", 5, 3, 11, 3, -1, 1))
sketch9.addConstraint(Sketcher.Constraint("Symmetric", 12, 3, 15, 3, -1, 1))
sketch9.addConstraint(Sketcher.Constraint("Symmetric", 14, 3, 16, 3, -1, 1))
sketch9.addConstraint(Sketcher.Constraint("Symmetric", 13, 3, 17, 3, -1, 1))
sketch9.addConstraint(Sketcher.Constraint("Symmetric", 5, 3, 7, 3, -2))
sketch9.addConstraint(Sketcher.Constraint("Symmetric", 4, 3, 8, 3, -2))
sketch9.addConstraint(Sketcher.Constraint("Symmetric", 13, 3, 14, 3, -2))
sketch9.addConstraint(Sketcher.Constraint("PointOnObject", 0, 3, -2))
sketch9.addConstraint(Sketcher.Constraint("PointOnObject", 3, 3, -1))
sketch9.addConstraint(Sketcher.Constraint("PointOnObject", 12, 3, -1))
sketch9.addConstraint(Sketcher.Constraint("Diameter", 0, 3.5))
sketch9.addConstraint(Sketcher.Constraint("Diameter", 12, 2.6))
sketch9.addConstraint(Sketcher.Constraint("DistanceY", -1, 1, 0, 3, 16.0))
sketch9.addConstraint(Sketcher.Constraint("DistanceX", 1, 3, -1, 1, 8.0))
sketch9.addConstraint(Sketcher.Constraint("DistanceY", -1, 1, 2, 3, 8.0))
sketch9.addConstraint(Sketcher.Constraint("DistanceX", 3, 3, -1, 1, 16.0))
sketch9.addConstraint(Sketcher.Constraint("DistanceX", -1, 1, 13, 3, 14.064789))
sketch9.addConstraint(Sketcher.Constraint("DistanceY", -1, 1, 13, 3, 24.360928))
sketch9.addConstraint(Sketcher.Constraint("DistanceX", 8, 3, 12, 3, 14.273171))
sketch9.addConstraint(Sketcher.Constraint("DistanceY", 11, 3, 13, 3, 10.504522))
sketch9.addConstraint(Sketcher.Constraint("DistanceX", 2, 3, -1, 1, 13.856406))
sketch9.setExpression("Constraints[31]", "Params.sketch9_diameter")
sketch9.setExpression("Constraints[32]", "Params.sketch9_diameter2")
pocket2 = body.newObject("PartDesign::Pocket", "Pocket001")
pocket2.Profile = sketch9
pocket2.Type = "ThroughAll"

# Sketch on XZ plane
sketch10 = body.newObject("Sketcher::SketchObject", "Sketch009")
sketch10.AttachmentSupport = (doc.getObject("XZ_Plane"), [""])
sketch10.MapMode = "FlatFace"
sketch10.addGeometry(Part.Circle(App.Vector(4, 6.9, 0), App.Vector(0, 0, 1), 1.8), False)
sketch10.addGeometry(Part.Circle(App.Vector(-8, 0, 0), App.Vector(0, 0, 1), 1.8), False)
sketch10.addGeometry(Part.Circle(App.Vector(4, -6.9, 0), App.Vector(0, 0, 1), 1.8), False)
sketch10.addConstraint(Sketcher.Constraint("Equal", 0, 1))
sketch10.addConstraint(Sketcher.Constraint("Equal", 1, 2))
sketch10.addConstraint(Sketcher.Constraint("Symmetric", 0, 3, 2, 3, -1))
sketch10.addConstraint(Sketcher.Constraint("PointOnObject", 1, 3, -1))
sketch10.addConstraint(Sketcher.Constraint("Diameter", 0, 3.5))
sketch10.addConstraint(Sketcher.Constraint("DistanceX", -1, 1, 0, 3, 4.0))
sketch10.addConstraint(Sketcher.Constraint("DistanceX", 1, 3, -1, 1, 8.0))
sketch10.addConstraint(Sketcher.Constraint("DistanceY", -1, 1, 0, 3, 6.928203))
sketch10.setExpression("Constraints[4]", "Params.sketch10_diameter")
pocket3 = body.newObject("PartDesign::Pocket", "Pocket002")
pocket3.Profile = sketch10
pocket3.Type = "ThroughAll"

# Sketch on XZ plane
sketch11 = body.newObject("Sketcher::SketchObject", "Sketch010")
sketch11.AttachmentSupport = (doc.getObject("XZ_Plane"), [""])
sketch11.MapMode = "FlatFace"
sketch11.AttachmentOffset = App.Placement(App.Vector(0, 0, -4.6), App.Rotation())
add_polygon(sketch11, [(-31, 0), (-29.6, 2.5), (-26.7, 2.5), (-25.2, 0), (-26.7, -2.5), (-29.6, -2.5)])  # lines 0-5
add_polygon(sketch11, [(-15.5, -26.9), (-17, -24.4), (-15.5, -21.9), (-12.6, -21.9), (-11.2, -24.4), (-12.6, -26.9)])  # lines 6-11
add_polygon(sketch11, [(15.5, -26.9), (12.6, -26.9), (11.2, -24.4), (12.6, -21.9), (15.5, -21.9), (17, -24.4)])  # lines 12-17
add_polygon(sketch11, [(31, 0), (29.6, -2.5), (26.7, -2.5), (25.2, 0), (26.7, 2.5), (29.6, 2.5)])  # lines 18-23
add_polygon(sketch11, [(15.5, 26.9), (17, 24.4), (15.5, 21.9), (12.6, 21.9), (11.2, 24.4), (12.6, 26.9)])  # lines 24-29
add_polygon(sketch11, [(-15.5, 26.9), (-12.6, 26.9), (-11.2, 24.4), (-12.6, 21.9), (-15.5, 21.9), (-17, 24.4)])  # lines 30-35
sketch11.addConstraint(Sketcher.Constraint("Horizontal", 1))
sketch11.addConstraint(Sketcher.Constraint("Horizontal", 4))
sketch11.addConstraint(Sketcher.Constraint("Horizontal", 8))
sketch11.addConstraint(Sketcher.Constraint("Horizontal", 11))
sketch11.addConstraint(Sketcher.Constraint("Horizontal", 12))
sketch11.addConstraint(Sketcher.Constraint("Horizontal", 15))
sketch11.addConstraint(Sketcher.Constraint("Horizontal", 19))
sketch11.addConstraint(Sketcher.Constraint("Horizontal", 22))
sketch11.addConstraint(Sketcher.Constraint("Horizontal", 26))
sketch11.addConstraint(Sketcher.Constraint("Horizontal", 29))
sketch11.addConstraint(Sketcher.Constraint("Horizontal", 30))
sketch11.addConstraint(Sketcher.Constraint("Horizontal", 33))
sketch11.addConstraint(Sketcher.Constraint("Symmetric", 0, 2, 18, 2, -1, 1))
sketch11.addConstraint(Sketcher.Constraint("Symmetric", 2, 2, 20, 2, -1, 1))
sketch11.addConstraint(Sketcher.Constraint("Symmetric", 3, 2, 21, 2, -1, 1))
sketch11.addConstraint(Sketcher.Constraint("Symmetric", 5, 2, 23, 2, -1, 1))
sketch11.addConstraint(Sketcher.Constraint("Symmetric", 6, 2, 24, 2, -1, 1))
sketch11.addConstraint(Sketcher.Constraint("Symmetric", 7, 2, 25, 2, -1, 1))
sketch11.addConstraint(Sketcher.Constraint("Symmetric", 9, 2, 27, 2, -1, 1))
sketch11.addConstraint(Sketcher.Constraint("Symmetric", 10, 2, 28, 2, -1, 1))
sketch11.addConstraint(Sketcher.Constraint("Symmetric", 12, 2, 30, 2, -1, 1))
sketch11.addConstraint(Sketcher.Constraint("Symmetric", 13, 2, 31, 2, -1, 1))
sketch11.addConstraint(Sketcher.Constraint("Symmetric", 14, 2, 32, 2, -1, 1))
sketch11.addConstraint(Sketcher.Constraint("Symmetric", 16, 2, 34, 2, -1, 1))
sketch11.addConstraint(Sketcher.Constraint("Symmetric", 10, 2, 12, 2, -2))
sketch11.addConstraint(Sketcher.Constraint("Symmetric", 9, 2, 13, 2, -2))
sketch11.addConstraint(Sketcher.Constraint("Symmetric", 8, 2, 14, 2, -2))
sketch11.addConstraint(Sketcher.Constraint("Symmetric", 6, 2, 16, 2, -2))
sketch11.addConstraint(Sketcher.Constraint("Symmetric", 4, 2, 18, 2, -2))
sketch11.addConstraint(Sketcher.Constraint("PointOnObject", 2, 2, -1))
sketch11.addConstraint(Sketcher.Constraint("PointOnObject", 5, 2, -1))
sketch11.addConstraint(Sketcher.Constraint("Parallel", 0, 3))
sketch11.addConstraint(Sketcher.Constraint("Parallel", 2, 5))
sketch11.addConstraint(Sketcher.Constraint("Parallel", 5, 6))
sketch11.addConstraint(Sketcher.Constraint("Parallel", 3, 7))
sketch11.addConstraint(Sketcher.Constraint("Parallel", 6, 9))
sketch11.addConstraint(Sketcher.Constraint("Parallel", 7, 10))
sketch11.addConstraint(Sketcher.Constraint("Parallel", 13, 16))
sketch11.addConstraint(Sketcher.Constraint("Parallel", 14, 17))
sketch11.addConstraint(Sketcher.Constraint("Parallel", 16, 20))
sketch11.addConstraint(Sketcher.Constraint("Parallel", 20, 23))
sketch11.addConstraint(Sketcher.Constraint("Parallel", 23, 24))
sketch11.addConstraint(Sketcher.Constraint("Parallel", 24, 27))
sketch11.addConstraint(Sketcher.Constraint("Parallel", 31, 34))
sketch11.addConstraint(Sketcher.Constraint("Parallel", 32, 35))
sketch11.addConstraint(Sketcher.Constraint("Horizontal", 6, 2, 9, 2))
sketch11.addConstraint(Sketcher.Constraint("Vertical", 8, 2, 10, 2))
sketch11.addConstraint(Sketcher.Constraint("Equal", 4, 8))
sketch11.addConstraint(Sketcher.Constraint("Equal", 5, 6))
sketch11.addConstraint(Sketcher.Constraint("Angle", 0, Q("60 deg")))
sketch11.addConstraint(Sketcher.Constraint("DistanceY", 3, 2, 1, 2, 5.0))
sketch11.addConstraint(Sketcher.Constraint("DistanceX", 1, 1, 1, 2, 2.886751))
sketch11.addConstraint(Sketcher.Constraint("DistanceX", 1, 2, -1, 1, 26.686201))
sketch11.addConstraint(Sketcher.Constraint("DistanceX", 7, 2, 13, 2, 26.686201))
sketch11.addConstraint(Sketcher.Constraint("DistanceY", 6, 2, -1, 1, 24.360928))
pocket4 = body.newObject("PartDesign::Pocket", "Pocket003")
pocket4.Profile = sketch11
pocket4.setExpression("Length", "Params.pocket4_length")
pocket4.Reversed = True

# Sketch on XZ plane
sketch12 = body.newObject("Sketcher::SketchObject", "Sketch011")
sketch12.AttachmentSupport = (doc.getObject("XZ_Plane"), [""])
sketch12.MapMode = "FlatFace"
sketch12.AttachmentOffset = App.Placement(App.Vector(0, 0, -4.6), App.Rotation())
sketch12.addGeometry(Part.Circle(App.Vector(-14.1, -24.4, 0), App.Vector(0, 0, 1), 1.5), False)
sketch12.addGeometry(Part.Circle(App.Vector(14.1, -24.4, 0), App.Vector(0, 0, 1), 1.5), False)
sketch12.addGeometry(Part.Circle(App.Vector(14.1, 24.4, 0), App.Vector(0, 0, 1), 1.5), False)
sketch12.addGeometry(Part.Circle(App.Vector(-14.1, 24.4, 0), App.Vector(0, 0, 1), 1.5), False)
sketch12.addGeometry(Part.Circle(App.Vector(-28.1, 0, 0), App.Vector(0, 0, 1), 1.5), False)
sketch12.addGeometry(Part.Circle(App.Vector(28.1, 0, 0), App.Vector(0, 0, 1), 1.5), False)
sketch12.addConstraint(Sketcher.Constraint("Equal", 0, 1))
sketch12.addConstraint(Sketcher.Constraint("Equal", 1, 2))
sketch12.addConstraint(Sketcher.Constraint("Equal", 2, 3))
sketch12.addConstraint(Sketcher.Constraint("Equal", 3, 4))
sketch12.addConstraint(Sketcher.Constraint("Equal", 4, 5))
sketch12.addConstraint(Sketcher.Constraint("Symmetric", 0, 3, 2, 3, -1, 1))
sketch12.addConstraint(Sketcher.Constraint("Symmetric", 1, 3, 3, 3, -1, 1))
sketch12.addConstraint(Sketcher.Constraint("Symmetric", 4, 3, 5, 3, -1, 1))
sketch12.addConstraint(Sketcher.Constraint("Symmetric", 0, 3, 1, 3, -2))
sketch12.addConstraint(Sketcher.Constraint("PointOnObject", 4, 3, -1))
sketch12.addConstraint(Sketcher.Constraint("Diameter", 0, 3.0))
sketch12.addConstraint(Sketcher.Constraint("DistanceX", 0, 3, -1, 1, 14.064789))
sketch12.addConstraint(Sketcher.Constraint("DistanceY", 0, 3, -1, 1, 24.360928))
sketch12.addConstraint(Sketcher.Constraint("DistanceX", 4, 3, 0, 3, 14.064789))
sketch12.setExpression("Constraints[10]", "Params.sketch12_diameter")
pocket5 = body.newObject("PartDesign::Pocket", "Pocket004")
pocket5.Profile = sketch12
pocket5.Type = "ThroughAll"
pocket5.Reversed = True

# Sketch on XZ plane
sketch13 = body.newObject("Sketcher::SketchObject", "Sketch012")
sketch13.AttachmentSupport = (doc.getObject("XZ_Plane"), [""])
sketch13.MapMode = "FlatFace"
sketch13.AttachmentOffset = App.Placement(App.Vector(0, 0, -4.6), App.Rotation())
add_polygon(sketch13, [(26.5, 2.8), (29.7, 2.8), (31.4, 0), (29.7, -2.8), (26.5, -2.8), (24.9, 0)])  # lines 0-5
add_polygon(sketch13, [(-29.7, -2.8), (-31.4, 0), (-29.7, 2.8), (-26.5, 2.8), (-24.9, 0), (-26.5, -2.8)])  # lines 6-11
add_polygon(sketch13, [(15.7, -27.2), (12.4, -27.2), (10.8, -24.4), (12.4, -21.6), (15.7, -21.6), (17.3, -24.4)])  # lines 12-17
add_polygon(sketch13, [(-10.8, -24.4), (-12.4, -27.2), (-15.7, -27.2), (-17.3, -24.4), (-15.7, -21.6), (-12.4, -21.6)])  # lines 18-23
add_polygon(sketch13, [(-15.7, 27.2), (-12.4, 27.2), (-10.8, 24.4), (-12.4, 21.6), (-15.7, 21.6), (-17.3, 24.4)])  # lines 24-29
add_polygon(sketch13, [(17.3, 24.4), (15.7, 21.6), (12.4, 21.6), (10.8, 24.4), (12.4, 27.2), (15.7, 27.2)])  # lines 30-35
sketch13.addConstraint(Sketcher.Constraint("Horizontal", 0))
sketch13.addConstraint(Sketcher.Constraint("Horizontal", 3))
sketch13.addConstraint(Sketcher.Constraint("Horizontal", 8))
sketch13.addConstraint(Sketcher.Constraint("Horizontal", 11))
sketch13.addConstraint(Sketcher.Constraint("Horizontal", 12))
sketch13.addConstraint(Sketcher.Constraint("Horizontal", 15))
sketch13.addConstraint(Sketcher.Constraint("Horizontal", 19))
sketch13.addConstraint(Sketcher.Constraint("Horizontal", 22))
sketch13.addConstraint(Sketcher.Constraint("Horizontal", 24))
sketch13.addConstraint(Sketcher.Constraint("Horizontal", 27))
sketch13.addConstraint(Sketcher.Constraint("Horizontal", 31))
sketch13.addConstraint(Sketcher.Constraint("Horizontal", 34))
sketch13.addConstraint(Sketcher.Constraint("Symmetric", 1, 2, 6, 2, -1, 1))
sketch13.addConstraint(Sketcher.Constraint("Symmetric", 2, 2, 7, 2, -1, 1))
sketch13.addConstraint(Sketcher.Constraint("Symmetric", 4, 2, 9, 2, -1, 1))
sketch13.addConstraint(Sketcher.Constraint("Symmetric", 5, 2, 10, 2, -1, 1))
sketch13.addConstraint(Sketcher.Constraint("Symmetric", 12, 2, 24, 2, -1, 1))
sketch13.addConstraint(Sketcher.Constraint("Symmetric", 13, 2, 25, 2, -1, 1))
sketch13.addConstraint(Sketcher.Constraint("Symmetric", 14, 2, 26, 2, -1, 1))
sketch13.addConstraint(Sketcher.Constraint("Symmetric", 16, 2, 28, 2, -1, 1))
sketch13.addConstraint(Sketcher.Constraint("Symmetric", 21, 2, 30, 2, -1, 1))
sketch13.addConstraint(Sketcher.Constraint("Symmetric", 23, 2, 32, 2, -1, 1))
sketch13.addConstraint(Sketcher.Constraint("Symmetric", 18, 2, 33, 2, -1, 1))
sketch13.addConstraint(Sketcher.Constraint("Symmetric", 20, 2, 35, 2, -1, 1))
sketch13.addConstraint(Sketcher.Constraint("Symmetric", 0, 2, 7, 2, -2))
sketch13.addConstraint(Sketcher.Constraint("Symmetric", 12, 2, 18, 2, -2))
sketch13.addConstraint(Sketcher.Constraint("Symmetric", 16, 2, 20, 2, -2))
sketch13.addConstraint(Sketcher.Constraint("Symmetric", 15, 2, 21, 2, -2))
sketch13.addConstraint(Sketcher.Constraint("Symmetric", 13, 2, 23, 2, -2))
sketch13.addConstraint(Sketcher.Constraint("PointOnObject", 1, 2, -1))
sketch13.addConstraint(Sketcher.Constraint("PointOnObject", 4, 2, -1))
sketch13.addConstraint(Sketcher.Constraint("Parallel", 1, 4))
sketch13.addConstraint(Sketcher.Constraint("Parallel", 2, 5))
sketch13.addConstraint(Sketcher.Constraint("Parallel", 4, 6))
sketch13.addConstraint(Sketcher.Constraint("Parallel", 6, 9))
sketch13.addConstraint(Sketcher.Constraint("Parallel", 9, 13))
sketch13.addConstraint(Sketcher.Constraint("Parallel", 10, 14))
sketch13.addConstraint(Sketcher.Constraint("Parallel", 13, 16))
sketch13.addConstraint(Sketcher.Constraint("Parallel", 14, 17))
sketch13.addConstraint(Sketcher.Constraint("Parallel", 16, 20))
sketch13.addConstraint(Sketcher.Constraint("Parallel", 20, 23))
sketch13.addConstraint(Sketcher.Constraint("Parallel", 25, 28))
sketch13.addConstraint(Sketcher.Constraint("Parallel", 26, 29))
sketch13.addConstraint(Sketcher.Constraint("Parallel", 28, 32))
sketch13.addConstraint(Sketcher.Constraint("Parallel", 32, 35))
sketch13.addConstraint(Sketcher.Constraint("Horizontal", 13, 2, 16, 2))
sketch13.addConstraint(Sketcher.Constraint("Vertical", 12, 2, 14, 2))
sketch13.addConstraint(Sketcher.Constraint("Equal", 11, 12))
sketch13.addConstraint(Sketcher.Constraint("Equal", 10, 13))
sketch13.addConstraint(Sketcher.Constraint("Angle", 1, Q("-60 deg")))
sketch13.addConstraint(Sketcher.Constraint("DistanceY", -1, 1, 0, 2, 2.8))
sketch13.addConstraint(Sketcher.Constraint("DistanceX", 0, 1, 0, 2, 3.233162))
sketch13.addConstraint(Sketcher.Constraint("DistanceX", -1, 1, 1, 2, 31.362739))
sketch13.addConstraint(Sketcher.Constraint("DistanceY", 12, 2, -1, 1, 27.160928))
sketch13.addConstraint(Sketcher.Constraint("DistanceX", -1, 1, 15, 2, 15.681369))
pocket6 = body.newObject("PartDesign::Pocket", "Pocket005")
pocket6.Profile = sketch13
pocket6.setExpression("Length", "Params.pocket6_length")
pocket6.Reversed = True

doc.recompute()
